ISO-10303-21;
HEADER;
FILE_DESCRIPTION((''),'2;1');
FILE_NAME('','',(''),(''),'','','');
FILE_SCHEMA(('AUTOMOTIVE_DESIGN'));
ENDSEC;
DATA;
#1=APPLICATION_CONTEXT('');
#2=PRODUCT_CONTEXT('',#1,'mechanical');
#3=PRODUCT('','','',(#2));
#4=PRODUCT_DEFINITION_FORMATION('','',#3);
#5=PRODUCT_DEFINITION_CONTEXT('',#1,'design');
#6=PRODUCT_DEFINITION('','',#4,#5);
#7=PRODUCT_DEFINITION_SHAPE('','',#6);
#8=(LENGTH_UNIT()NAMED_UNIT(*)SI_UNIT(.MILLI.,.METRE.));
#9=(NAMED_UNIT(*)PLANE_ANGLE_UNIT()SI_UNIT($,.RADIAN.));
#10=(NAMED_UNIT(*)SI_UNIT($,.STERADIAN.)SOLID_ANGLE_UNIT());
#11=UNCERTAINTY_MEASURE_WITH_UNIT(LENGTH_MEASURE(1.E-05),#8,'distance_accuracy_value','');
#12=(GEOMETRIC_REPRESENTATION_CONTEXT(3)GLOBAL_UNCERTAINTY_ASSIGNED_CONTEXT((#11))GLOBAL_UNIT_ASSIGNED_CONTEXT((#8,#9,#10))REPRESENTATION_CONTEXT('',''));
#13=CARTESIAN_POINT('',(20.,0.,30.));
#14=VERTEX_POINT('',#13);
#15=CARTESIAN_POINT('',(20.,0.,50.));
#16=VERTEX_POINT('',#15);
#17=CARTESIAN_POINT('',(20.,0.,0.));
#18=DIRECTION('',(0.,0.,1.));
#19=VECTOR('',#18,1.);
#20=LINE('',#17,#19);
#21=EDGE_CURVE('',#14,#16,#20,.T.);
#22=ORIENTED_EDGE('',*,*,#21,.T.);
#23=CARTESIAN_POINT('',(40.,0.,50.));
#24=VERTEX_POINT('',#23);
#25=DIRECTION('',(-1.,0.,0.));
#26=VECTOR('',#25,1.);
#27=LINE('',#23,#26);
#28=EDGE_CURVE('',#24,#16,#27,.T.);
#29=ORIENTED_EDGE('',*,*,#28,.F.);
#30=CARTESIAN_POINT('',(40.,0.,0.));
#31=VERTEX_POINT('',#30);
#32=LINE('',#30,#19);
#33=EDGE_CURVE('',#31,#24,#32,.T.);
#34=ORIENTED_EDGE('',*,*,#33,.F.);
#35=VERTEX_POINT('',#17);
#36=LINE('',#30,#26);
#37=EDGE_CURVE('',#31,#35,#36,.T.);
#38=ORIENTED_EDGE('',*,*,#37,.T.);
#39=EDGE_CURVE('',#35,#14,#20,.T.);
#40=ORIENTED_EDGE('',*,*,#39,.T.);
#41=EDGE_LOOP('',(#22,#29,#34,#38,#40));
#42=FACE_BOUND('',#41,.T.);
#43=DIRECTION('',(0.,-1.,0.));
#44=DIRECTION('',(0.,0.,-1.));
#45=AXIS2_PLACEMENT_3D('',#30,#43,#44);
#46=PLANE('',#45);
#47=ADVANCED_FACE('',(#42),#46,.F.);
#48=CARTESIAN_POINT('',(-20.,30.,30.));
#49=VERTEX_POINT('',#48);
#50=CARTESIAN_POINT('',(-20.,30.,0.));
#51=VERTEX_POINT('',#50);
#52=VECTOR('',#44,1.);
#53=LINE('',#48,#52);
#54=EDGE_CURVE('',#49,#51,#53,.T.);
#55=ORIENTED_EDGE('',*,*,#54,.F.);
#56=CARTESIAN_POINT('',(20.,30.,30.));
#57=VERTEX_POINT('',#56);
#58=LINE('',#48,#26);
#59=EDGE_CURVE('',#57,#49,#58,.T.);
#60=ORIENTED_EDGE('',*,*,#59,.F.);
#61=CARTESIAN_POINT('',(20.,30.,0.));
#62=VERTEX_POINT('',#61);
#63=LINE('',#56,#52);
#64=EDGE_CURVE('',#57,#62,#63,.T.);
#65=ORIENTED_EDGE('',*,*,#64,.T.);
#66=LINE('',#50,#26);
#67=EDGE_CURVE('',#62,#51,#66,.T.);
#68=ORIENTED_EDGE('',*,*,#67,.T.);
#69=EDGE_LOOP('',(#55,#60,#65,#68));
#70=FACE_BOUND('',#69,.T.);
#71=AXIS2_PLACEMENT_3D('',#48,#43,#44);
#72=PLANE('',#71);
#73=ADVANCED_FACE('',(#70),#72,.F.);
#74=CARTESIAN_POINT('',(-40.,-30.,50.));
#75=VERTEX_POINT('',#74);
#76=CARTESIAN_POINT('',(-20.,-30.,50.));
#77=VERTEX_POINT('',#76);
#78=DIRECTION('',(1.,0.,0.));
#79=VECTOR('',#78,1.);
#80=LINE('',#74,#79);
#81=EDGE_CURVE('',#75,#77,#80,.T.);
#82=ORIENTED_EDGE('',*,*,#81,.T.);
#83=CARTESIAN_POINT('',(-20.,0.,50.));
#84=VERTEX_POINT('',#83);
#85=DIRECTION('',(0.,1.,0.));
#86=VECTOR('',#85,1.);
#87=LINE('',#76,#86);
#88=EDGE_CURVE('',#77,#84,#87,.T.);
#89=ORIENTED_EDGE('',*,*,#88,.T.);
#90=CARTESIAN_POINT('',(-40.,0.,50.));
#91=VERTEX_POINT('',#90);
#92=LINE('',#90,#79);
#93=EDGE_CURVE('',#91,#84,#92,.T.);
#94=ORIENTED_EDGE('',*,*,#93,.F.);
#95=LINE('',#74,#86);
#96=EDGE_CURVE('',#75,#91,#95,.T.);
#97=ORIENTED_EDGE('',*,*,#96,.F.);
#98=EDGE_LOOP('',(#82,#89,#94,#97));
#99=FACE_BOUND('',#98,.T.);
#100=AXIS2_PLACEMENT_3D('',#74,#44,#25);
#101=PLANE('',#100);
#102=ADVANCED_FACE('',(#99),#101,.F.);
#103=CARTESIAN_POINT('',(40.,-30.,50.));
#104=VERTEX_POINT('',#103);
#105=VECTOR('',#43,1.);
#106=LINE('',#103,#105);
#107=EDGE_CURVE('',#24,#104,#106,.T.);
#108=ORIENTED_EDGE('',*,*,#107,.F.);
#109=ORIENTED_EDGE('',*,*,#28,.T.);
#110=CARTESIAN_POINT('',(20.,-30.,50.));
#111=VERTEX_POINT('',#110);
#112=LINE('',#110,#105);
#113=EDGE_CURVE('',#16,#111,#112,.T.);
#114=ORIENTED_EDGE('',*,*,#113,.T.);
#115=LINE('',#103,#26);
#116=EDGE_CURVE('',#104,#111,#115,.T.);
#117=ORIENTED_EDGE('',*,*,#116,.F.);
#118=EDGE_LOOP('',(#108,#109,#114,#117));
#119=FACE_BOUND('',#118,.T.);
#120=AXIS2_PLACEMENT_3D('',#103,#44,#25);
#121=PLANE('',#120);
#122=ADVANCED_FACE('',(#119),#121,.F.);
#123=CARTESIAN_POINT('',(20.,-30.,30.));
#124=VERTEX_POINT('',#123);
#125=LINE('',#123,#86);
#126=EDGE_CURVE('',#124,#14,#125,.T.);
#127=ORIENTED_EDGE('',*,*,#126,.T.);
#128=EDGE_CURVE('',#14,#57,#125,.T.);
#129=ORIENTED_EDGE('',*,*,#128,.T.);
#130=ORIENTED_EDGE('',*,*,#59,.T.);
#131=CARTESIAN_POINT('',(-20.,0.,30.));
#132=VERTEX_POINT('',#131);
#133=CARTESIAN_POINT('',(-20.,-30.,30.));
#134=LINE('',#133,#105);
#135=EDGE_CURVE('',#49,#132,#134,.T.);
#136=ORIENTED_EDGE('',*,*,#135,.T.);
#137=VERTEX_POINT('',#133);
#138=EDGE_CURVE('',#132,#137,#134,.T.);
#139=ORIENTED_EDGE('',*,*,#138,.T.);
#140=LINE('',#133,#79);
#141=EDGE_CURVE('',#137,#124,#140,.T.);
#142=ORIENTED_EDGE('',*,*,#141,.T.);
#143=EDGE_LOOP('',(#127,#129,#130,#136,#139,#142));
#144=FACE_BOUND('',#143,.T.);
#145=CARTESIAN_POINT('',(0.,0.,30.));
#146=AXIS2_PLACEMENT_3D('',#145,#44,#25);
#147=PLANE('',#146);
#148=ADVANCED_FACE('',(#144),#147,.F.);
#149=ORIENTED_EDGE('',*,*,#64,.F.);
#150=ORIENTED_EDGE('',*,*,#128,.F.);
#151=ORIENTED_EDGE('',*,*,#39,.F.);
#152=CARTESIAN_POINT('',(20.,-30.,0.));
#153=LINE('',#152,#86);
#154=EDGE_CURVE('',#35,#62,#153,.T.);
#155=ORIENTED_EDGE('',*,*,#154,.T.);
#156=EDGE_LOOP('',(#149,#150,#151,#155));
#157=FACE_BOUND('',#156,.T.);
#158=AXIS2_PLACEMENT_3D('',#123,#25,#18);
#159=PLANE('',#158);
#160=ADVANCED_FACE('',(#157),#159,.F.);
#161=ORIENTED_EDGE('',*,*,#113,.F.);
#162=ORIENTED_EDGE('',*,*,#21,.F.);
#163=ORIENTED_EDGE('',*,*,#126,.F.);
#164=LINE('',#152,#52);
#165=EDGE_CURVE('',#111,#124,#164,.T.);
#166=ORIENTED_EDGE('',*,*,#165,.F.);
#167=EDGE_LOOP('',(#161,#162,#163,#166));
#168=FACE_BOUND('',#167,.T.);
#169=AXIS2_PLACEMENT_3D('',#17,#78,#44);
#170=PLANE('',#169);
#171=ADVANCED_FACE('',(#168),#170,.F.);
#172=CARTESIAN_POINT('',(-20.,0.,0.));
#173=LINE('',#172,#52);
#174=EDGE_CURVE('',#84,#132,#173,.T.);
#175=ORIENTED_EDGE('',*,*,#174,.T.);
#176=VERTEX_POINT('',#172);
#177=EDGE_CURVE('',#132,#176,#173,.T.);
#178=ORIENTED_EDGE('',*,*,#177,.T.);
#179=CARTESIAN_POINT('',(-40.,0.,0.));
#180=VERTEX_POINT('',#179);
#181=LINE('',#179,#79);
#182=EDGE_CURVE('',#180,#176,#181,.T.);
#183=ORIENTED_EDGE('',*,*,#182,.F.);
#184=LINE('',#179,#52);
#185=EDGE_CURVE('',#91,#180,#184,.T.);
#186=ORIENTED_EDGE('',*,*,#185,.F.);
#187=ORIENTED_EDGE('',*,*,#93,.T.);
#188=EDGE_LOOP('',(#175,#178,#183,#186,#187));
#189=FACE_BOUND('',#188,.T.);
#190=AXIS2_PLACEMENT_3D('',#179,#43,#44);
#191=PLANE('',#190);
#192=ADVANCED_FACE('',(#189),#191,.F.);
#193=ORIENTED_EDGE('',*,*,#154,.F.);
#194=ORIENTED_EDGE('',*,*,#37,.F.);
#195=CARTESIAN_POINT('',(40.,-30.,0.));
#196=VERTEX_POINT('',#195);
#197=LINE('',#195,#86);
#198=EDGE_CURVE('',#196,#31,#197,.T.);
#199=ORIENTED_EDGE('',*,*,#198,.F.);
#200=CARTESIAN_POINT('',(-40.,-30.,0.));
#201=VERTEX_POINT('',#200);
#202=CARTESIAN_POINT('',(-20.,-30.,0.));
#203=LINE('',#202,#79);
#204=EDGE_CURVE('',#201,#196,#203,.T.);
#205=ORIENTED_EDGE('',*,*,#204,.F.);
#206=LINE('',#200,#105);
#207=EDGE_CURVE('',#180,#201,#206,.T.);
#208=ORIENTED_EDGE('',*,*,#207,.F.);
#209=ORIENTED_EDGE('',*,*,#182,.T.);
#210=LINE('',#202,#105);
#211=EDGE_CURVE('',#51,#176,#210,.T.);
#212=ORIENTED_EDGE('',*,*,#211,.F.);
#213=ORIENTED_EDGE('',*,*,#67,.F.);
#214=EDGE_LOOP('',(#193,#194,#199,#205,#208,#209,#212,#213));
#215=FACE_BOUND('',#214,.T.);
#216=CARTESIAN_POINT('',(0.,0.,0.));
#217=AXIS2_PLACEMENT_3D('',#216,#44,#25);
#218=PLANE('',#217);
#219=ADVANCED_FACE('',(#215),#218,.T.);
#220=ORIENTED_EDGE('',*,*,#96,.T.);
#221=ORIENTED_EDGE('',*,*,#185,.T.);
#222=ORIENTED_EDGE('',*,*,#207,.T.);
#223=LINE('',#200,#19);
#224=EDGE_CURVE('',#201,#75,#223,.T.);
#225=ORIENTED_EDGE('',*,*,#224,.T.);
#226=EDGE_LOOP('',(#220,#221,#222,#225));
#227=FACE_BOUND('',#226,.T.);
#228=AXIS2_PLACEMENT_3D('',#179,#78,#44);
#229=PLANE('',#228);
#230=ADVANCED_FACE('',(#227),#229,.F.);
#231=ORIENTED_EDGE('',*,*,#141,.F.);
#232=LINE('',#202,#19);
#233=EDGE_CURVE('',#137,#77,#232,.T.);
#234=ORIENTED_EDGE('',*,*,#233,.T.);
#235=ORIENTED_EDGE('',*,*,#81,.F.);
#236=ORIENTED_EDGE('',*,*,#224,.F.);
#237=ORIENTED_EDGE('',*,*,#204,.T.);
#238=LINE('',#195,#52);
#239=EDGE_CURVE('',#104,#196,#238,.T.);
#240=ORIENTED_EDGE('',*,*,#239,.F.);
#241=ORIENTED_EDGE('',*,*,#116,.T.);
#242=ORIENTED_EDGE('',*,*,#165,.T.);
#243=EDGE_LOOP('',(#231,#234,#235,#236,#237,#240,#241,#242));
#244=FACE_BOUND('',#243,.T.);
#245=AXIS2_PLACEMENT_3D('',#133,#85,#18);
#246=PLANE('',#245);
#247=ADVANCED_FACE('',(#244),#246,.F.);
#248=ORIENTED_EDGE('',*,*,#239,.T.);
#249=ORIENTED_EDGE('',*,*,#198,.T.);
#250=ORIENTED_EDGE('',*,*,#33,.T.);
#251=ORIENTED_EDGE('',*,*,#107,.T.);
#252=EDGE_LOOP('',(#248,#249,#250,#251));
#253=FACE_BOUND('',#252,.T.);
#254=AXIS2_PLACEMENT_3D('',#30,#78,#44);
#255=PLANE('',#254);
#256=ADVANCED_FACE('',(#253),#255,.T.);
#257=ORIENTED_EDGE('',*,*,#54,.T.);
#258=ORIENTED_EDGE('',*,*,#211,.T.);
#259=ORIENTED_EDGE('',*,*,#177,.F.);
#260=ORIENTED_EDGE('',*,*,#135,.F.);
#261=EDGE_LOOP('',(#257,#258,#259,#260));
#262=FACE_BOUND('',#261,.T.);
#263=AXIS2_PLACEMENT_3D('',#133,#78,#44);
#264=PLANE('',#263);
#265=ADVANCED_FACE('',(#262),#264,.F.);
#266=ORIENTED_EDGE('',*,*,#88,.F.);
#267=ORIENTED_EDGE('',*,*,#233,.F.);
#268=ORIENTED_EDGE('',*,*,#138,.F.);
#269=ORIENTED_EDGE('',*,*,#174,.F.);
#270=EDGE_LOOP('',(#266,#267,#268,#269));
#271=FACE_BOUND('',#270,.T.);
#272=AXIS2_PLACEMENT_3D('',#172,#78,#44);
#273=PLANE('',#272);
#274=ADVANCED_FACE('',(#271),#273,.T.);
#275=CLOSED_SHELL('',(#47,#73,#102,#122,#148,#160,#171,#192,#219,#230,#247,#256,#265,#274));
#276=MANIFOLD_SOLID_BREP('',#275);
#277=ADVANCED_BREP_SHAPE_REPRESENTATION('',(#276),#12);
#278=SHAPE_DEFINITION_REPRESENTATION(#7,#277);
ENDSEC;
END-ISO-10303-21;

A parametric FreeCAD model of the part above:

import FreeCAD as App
import Part
import Sketcher

V = App.Vector
Q = App.Units.Quantity


def add_polygon(sketch, points):
    """Adds a closed chain of lines whose ends are joined by coincident constraints."""
    first, n = sketch.GeometryCount, len(points)
    for a, b in zip(points, points[1:] + points[:1]):
        sketch.addGeometry(Part.LineSegment(App.Vector(*a, 0), App.Vector(*b, 0)), False)
    for i in range(n):
        sketch.addConstraint(Sketcher.Constraint("Coincident", first + i, 2, first + (i + 1) % n, 1))

doc = App.newDocument("Part")
body = doc.addObject("PartDesign::Body", "Body")

# Sketch on XY plane
sketch1 = body.newObject("Sketcher::SketchObject", "Sketch")
sketch1.AttachmentSupport = (doc.getObject("XY_Plane"), [""])
sketch1.MapMode = "FlatFace"
add_polygon(sketch1, [(-20, 30), (-20, -30), (20, -30), (20, 30)])  # lines 0-3
sketch1.addConstraint([
    Sketcher.Constraint("Vertical", 0),
    Sketcher.Constraint("Horizontal", 1),
    Sketcher.Constraint("Vertical", 2),
    Sketcher.Constraint("Horizontal", 3),
    Sketcher.Constraint("Symmetric", 0, 2, 2, 2, -1, 1),
    Sketcher.Constraint("DistanceX", 1, 1, 1, 2, Q("40 mm")),
    Sketcher.Constraint("DistanceY", 0, 2, 0, 1, Q("60 mm")),
])
pad1 = body.newObject("PartDesign::Pad", "Pad")
pad1.Profile = sketch1
pad1.Length = 30

# Sketch on YZ plane
sketch2 = body.newObject("Sketcher::SketchObject", "Sketch001")
sketch2.AttachmentSupport = (doc.getObject("YZ_Plane"), [""])
sketch2.MapMode = "FlatFace"
sketch2.AttachmentOffset = App.Placement(V(0, 0, 20), App.Rotation())
add_polygon(sketch2, [(0, 50), (-30, 50), (-30, 0), (0, 0)])  # lines 0-3
sketch2.addConstraint([
    Sketcher.Constraint("Horizontal", 0),
    Sketcher.Constraint("Vertical", 1),
    Sketcher.Constraint("Horizontal", 2),
    Sketcher.Constraint("Vertical", 3),
    Sketcher.Constraint("Coincident", 2, 2, -1, 1),
    Sketcher.Constraint("DistanceX", 0, 2, 0, 1, Q("30 mm")),
    Sketcher.Constraint("DistanceY", 1, 2, 1, 1, Q("50 mm")),
])
pad2 = body.newObject("PartDesign::Pad", "Pad001")
pad2.Profile = sketch2
pad2.Length = 20

# Sketch on YZ plane
sketch3 = body.newObject("Sketcher::SketchObject", "Sketch002")
sketch3.AttachmentSupport = (doc.getObject("YZ_Plane"), [""])
sketch3.MapMode = "FlatFace"
sketch3.AttachmentOffset = App.Placement(V(0, 0, -20), App.Rotation())
add_polygon(sketch3, [(0, 0), (-30, 0), (-30, 50), (0, 50)])  # lines 0-3
sketch3.addConstraint([
    Sketcher.Constraint("Horizontal", 0),
    Sketcher.Constraint("Vertical", 1),
    Sketcher.Constraint("Horizontal", 2),
    Sketcher.Constraint("Vertical", 3),
    Sketcher.Constraint("Coincident", 3, 2, -1, 1),
    Sketcher.Constraint("DistanceX", 0, 2, 0, 1, Q("30 mm")),
    Sketcher.Constraint("DistanceY", 1, 1, 1, 2, Q("50 mm")),
])
pad3 = body.newObject("PartDesign::Pad", "Pad002")
pad3.Profile = sketch3
pad3.Length = 20
pad3.Reversed = True

doc.recompute()
